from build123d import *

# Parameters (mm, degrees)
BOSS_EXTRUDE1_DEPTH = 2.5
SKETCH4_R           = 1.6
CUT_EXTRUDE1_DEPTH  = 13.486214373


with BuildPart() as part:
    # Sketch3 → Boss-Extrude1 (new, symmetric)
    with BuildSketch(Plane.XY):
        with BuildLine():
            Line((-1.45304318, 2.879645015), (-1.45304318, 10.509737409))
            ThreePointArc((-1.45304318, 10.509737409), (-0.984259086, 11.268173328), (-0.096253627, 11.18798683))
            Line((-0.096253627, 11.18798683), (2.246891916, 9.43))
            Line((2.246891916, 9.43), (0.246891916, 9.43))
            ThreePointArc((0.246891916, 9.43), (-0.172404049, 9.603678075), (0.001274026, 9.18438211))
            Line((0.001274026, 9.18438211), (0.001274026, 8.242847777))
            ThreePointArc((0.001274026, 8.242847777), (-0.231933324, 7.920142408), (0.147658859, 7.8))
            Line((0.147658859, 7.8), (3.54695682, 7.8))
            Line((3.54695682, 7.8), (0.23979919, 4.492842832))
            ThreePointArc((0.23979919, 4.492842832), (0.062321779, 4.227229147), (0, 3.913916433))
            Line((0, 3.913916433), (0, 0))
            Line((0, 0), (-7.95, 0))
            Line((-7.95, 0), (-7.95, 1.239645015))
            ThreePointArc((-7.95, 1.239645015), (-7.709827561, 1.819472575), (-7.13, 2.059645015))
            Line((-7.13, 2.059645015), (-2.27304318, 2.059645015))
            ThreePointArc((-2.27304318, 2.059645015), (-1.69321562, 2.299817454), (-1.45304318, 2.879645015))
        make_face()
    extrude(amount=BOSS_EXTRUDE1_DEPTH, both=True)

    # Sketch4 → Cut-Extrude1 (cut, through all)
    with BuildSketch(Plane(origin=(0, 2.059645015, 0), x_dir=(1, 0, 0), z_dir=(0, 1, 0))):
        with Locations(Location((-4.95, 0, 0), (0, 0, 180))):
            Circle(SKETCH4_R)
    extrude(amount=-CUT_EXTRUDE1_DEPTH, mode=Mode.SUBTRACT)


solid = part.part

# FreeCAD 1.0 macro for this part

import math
import FreeCAD as App
import Part
import Sketcher
Q = App.Units.Quantity

doc = App.newDocument("Part")
body = doc.addObject("PartDesign::Body", "Body")

sketch1 = doc.addObject("Sketcher::SketchObject", "Sketch")
body.addObject(sketch1)
sketch1.AttachmentSupport = (doc.XY_Plane, [""])
sketch1.MapMode = "FlatFace"
sketch1.addGeometry(Part.LineSegment(App.Vector(-1.45, 10.51, 0), App.Vector(-1.45, 2.88, 0)), False)
sketch1.addGeometry(Part.ArcOfCircle(Part.Circle(App.Vector(-2.27, 2.88, 0), App.Vector(0, 0, 1), 0.82), math.radians(-90), math.radians(0)), False)
sketch1.addGeometry(Part.LineSegment(App.Vector(-2.27, 2.06, 0), App.Vector(-7.13, 2.06, 0)), False)
sketch1.addGeometry(Part.ArcOfCircle(Part.Circle(App.Vector(-7.13, 1.24, 0), App.Vector(0, 0, 1), 0.82), math.radians(90), math.radians(180)), False)
sketch1.addGeometry(Part.LineSegment(App.Vector(-7.95, 1.24, 0), App.Vector(-7.95, 0, 0)), False)
sketch1.addGeometry(Part.LineSegment(App.Vector(-7.95, 0, 0), App.Vector(0, 0, 0)), False)
sketch1.addGeometry(Part.LineSegment(App.Vector(0, 0, 0), App.Vector(0, 3.91, 0)), False)
sketch1.addGeometry(Part.ArcOfCircle(Part.Circle(App.Vector(0.82, 3.91, 0), App.Vector(0, 0, 1), 0.82), math.radians(135), math.radians(180)), False)
sketch1.addGeometry(Part.LineSegment(App.Vector(0.24, 4.49, 0), App.Vector(3.55, 7.8, 0)), False)
sketch1.addGeometry(Part.LineSegment(App.Vector(3.55, 7.8, 0), App.Vector(0.15, 7.8, 0)), False)
sketch1.addGeometry(Part.ArcOfCircle(Part.Circle(App.Vector(0, 8, 0), App.Vector(0, 0, 1), 0.25), math.radians(90), math.radians(307)), False)
sketch1.addGeometry(Part.LineSegment(App.Vector(0, 8.24, 0), App.Vector(0, 9.18, 0)), False)
sketch1.addGeometry(Part.ArcOfCircle(Part.Circle(App.Vector(0, 9.43, 0), App.Vector(0, 0, 1), 0.25), math.radians(0), math.radians(270)), False)
sketch1.addGeometry(Part.LineSegment(App.Vector(0.25, 9.43, 0), App.Vector(2.25, 9.43, 0)), False)
sketch1.addGeometry(Part.LineSegment(App.Vector(2.25, 9.43, 0), App.Vector(-0.1, 11.19, 0)), False)
sketch1.addGeometry(Part.ArcOfCircle(Part.Circle(App.Vector(-0.61, 10.51, 0), App.Vector(0, 0, 1), 0.85), math.radians(53), math.radians(180)), False)
sketch1.addConstraint(Sketcher.Constraint("Tangent", 0, 2, 1, 2))
sketch1.addConstraint(Sketcher.Constraint("Tangent", 1, 1, 2, 1))
sketch1.addConstraint(Sketcher.Constraint("Tangent", 2, 2, 3, 1))
sketch1.addConstraint(Sketcher.Constraint("Tangent", 3, 2, 4, 1))
sketch1.addConstraint(Sketcher.Constraint("Coincident", 4, 2, 5, 1))
sketch1.addConstraint(Sketcher.Constraint("Coincident", 5, 2, 6, 1))
sketch1.addConstraint(Sketcher.Constraint("Tangent", 6, 2, 7, 2))
sketch1.addConstraint(Sketcher.Constraint("Tangent", 7, 1, 8, 1))
sketch1.addConstraint(Sketcher.Constraint("Coincident", 8, 2, 9, 1))
sketch1.addConstraint(Sketcher.Constraint("Coincident", 9, 2, 10, 2))
sketch1.addConstraint(Sketcher.Constraint("Coincident", 10, 1, 11, 1))
sketch1.addConstraint(Sketcher.Constraint("Coincident", 11, 2, 12, 2))
sketch1.addConstraint(Sketcher.Constraint("Coincident", 12, 1, 13, 1))
sketch1.addConstraint(Sketcher.Constraint("Coincident", 13, 2, 14, 1))
sketch1.addConstraint(Sketcher.Constraint("Tangent", 14, 2, 15, 1))
sketch1.addConstraint(Sketcher.Constraint("Tangent", 15, 2, 0, 1))
sketch1.addConstraint(Sketcher.Constraint("Vertical", 0))
sketch1.addConstraint(Sketcher.Constraint("Horizontal", 2))
sketch1.addConstraint(Sketcher.Constraint("Vertical", 4))
sketch1.addConstraint(Sketcher.Constraint("Horizontal", 5))
sketch1.addConstraint(Sketcher.Constraint("Vertical", 6))
sketch1.addConstraint(Sketcher.Constraint("Horizontal", 9))
sketch1.addConstraint(Sketcher.Constraint("Vertical", 11))
sketch1.addConstraint(Sketcher.Constraint("Horizontal", 13))
sketch1.addConstraint(Sketcher.Constraint("Coincident", 5, 2, -1, 1))
sketch1.addConstraint(Sketcher.Constraint("Equal", 1, 3))
sketch1.addConstraint(Sketcher.Constraint("Equal", 10, 12))
sketch1.addConstraint(Sketcher.Constraint("Vertical", 10, 3, 12, 3))
sketch1.addConstraint(Sketcher.Constraint("Vertical", 12, 3, 10, 1))
sketch1.addConstraint(Sketcher.Constraint("DistanceX", 13, 1, 13, 2, Q("2 mm")))
sketch1.addConstraint(Sketcher.Constraint("Angle", 8, Q("44.999996 deg")))
sketch1.addConstraint(Sketcher.Constraint("Radius", 1, Q("0.82 mm")))
sketch1.addConstraint(Sketcher.Constraint("DistanceX", 5, 1, 5, 2, Q("7.95 mm")))
sketch1.addConstraint(Sketcher.Constraint("DistanceY", -1, 1, 8, 2, Q("7.8 mm")))
sketch1.addConstraint(Sketcher.Constraint("DistanceY", -1, 1, 12, 3, Q("9.43 mm")))
sketch1.addConstraint(Sketcher.Constraint("DistanceY", -1, 1, 12, 1, Q("9.43 mm")))
sketch1.addConstraint(Sketcher.Constraint("Radius", 15, Q("0.847921 mm")))
sketch1.addConstraint(Sketcher.Constraint("Radius", 7, Q("0.818726 mm")))
sketch1.addConstraint(Sketcher.Constraint("Radius", 10, Q("0.245618 mm")))
sketch1.addConstraint(Sketcher.Constraint("Distance", 14, Q("2.929309 mm")))
sketch1.addConstraint(Sketcher.Constraint("DistanceX", 2, 2, 2, 1, Q("4.856957 mm")))
sketch1.addConstraint(Sketcher.Constraint("DistanceX", 9, 2, 9, 1, Q("3.399298 mm")))
sketch1.addConstraint(Sketcher.Constraint("DistanceY", 0, 2, 0, 1, Q("7.630092 mm")))
sketch1.addConstraint(Sketcher.Constraint("DistanceY", 4, 2, 4, 1, Q("1.239645 mm")))
sketch1.addConstraint(Sketcher.Constraint("DistanceY", 6, 1, 6, 2, Q("3.913916 mm")))
pad1 = doc.addObject("PartDesign::Pad", "Pad")
body.addObject(pad1)
pad1.Profile = sketch1
pad1.Length = 5
pad1.Midplane = True

sketch2 = doc.addObject("Sketcher::SketchObject", "Sketch001")
body.addObject(sketch2)
sketch2.AttachmentSupport = (doc.XZ_Plane, [""])
sketch2.MapMode = "FlatFace"
sketch2.AttachmentOffset = App.Placement(App.Vector(0, 0, -2.059645), App.Rotation())
sketch2.addGeometry(Part.Circle(App.Vector(-5, 0, 0), App.Vector(0, 0, 1), 1.6), False)
sketch2.addConstraint(Sketcher.Constraint("PointOnObject", 0, 3, -1))
sketch2.addConstraint(Sketcher.Constraint("Diameter", 0, Q("3.2 mm")))
sketch2.addConstraint(Sketcher.Constraint("DistanceX", 0, 3, -1, 1, Q("4.95 mm")))
pocket1 = doc.addObject("PartDesign::Pocket", "Pocket")
body.addObject(pocket1)
pocket1.Profile = sketch2
pocket1.Type = "ThroughAll"
pocket1.Reversed = True

doc.recompute()
